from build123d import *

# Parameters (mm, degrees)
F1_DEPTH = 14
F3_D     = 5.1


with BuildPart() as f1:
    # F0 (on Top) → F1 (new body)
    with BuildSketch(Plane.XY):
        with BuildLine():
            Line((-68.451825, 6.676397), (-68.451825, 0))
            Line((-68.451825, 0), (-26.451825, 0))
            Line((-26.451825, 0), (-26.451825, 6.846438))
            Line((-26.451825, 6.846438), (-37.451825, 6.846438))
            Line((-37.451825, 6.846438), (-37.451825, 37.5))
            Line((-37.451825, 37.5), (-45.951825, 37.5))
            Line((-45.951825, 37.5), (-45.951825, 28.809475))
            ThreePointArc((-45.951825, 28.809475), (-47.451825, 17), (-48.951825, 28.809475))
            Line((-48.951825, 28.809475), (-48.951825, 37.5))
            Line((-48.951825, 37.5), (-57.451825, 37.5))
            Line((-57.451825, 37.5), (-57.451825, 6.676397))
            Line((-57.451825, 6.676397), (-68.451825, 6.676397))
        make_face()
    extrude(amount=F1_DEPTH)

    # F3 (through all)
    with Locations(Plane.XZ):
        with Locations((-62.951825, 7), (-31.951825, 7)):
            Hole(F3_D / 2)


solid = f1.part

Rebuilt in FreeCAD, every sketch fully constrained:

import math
import FreeCAD as App
import Part
import Sketcher
Q = App.Units.Quantity

doc = App.newDocument("Part")
body = doc.addObject("PartDesign::Body", "Body")

# Sketch on XY plane
sketch1 = body.newObject("Sketcher::SketchObject", "Sketch")
sketch1.AttachmentSupport = (doc.getObject("XY_Plane"), [""])
sketch1.MapMode = "FlatFace"
sketch1.addGeometry([
    Part.LineSegment(App.Vector(-68.451825, 6.676397, 0), App.Vector(-68.451825, 0, 0)),  # 0
    Part.LineSegment(App.Vector(-68.451825, 0, 0), App.Vector(-26.451825, 0, 0)),  # 1
    Part.LineSegment(App.Vector(-26.451825, 0, 0), App.Vector(-26.451825, 6.846438, 0)),  # 2
    Part.LineSegment(App.Vector(-26.451825, 6.846438, 0), App.Vector(-37.451825, 6.846438, 0)),  # 3
    Part.LineSegment(App.Vector(-37.451825, 6.846438, 0), App.Vector(-37.451825, 37.5, 0)),  # 4
    Part.LineSegment(App.Vector(-37.451825, 37.5, 0), App.Vector(-45.951825, 37.5, 0)),  # 5
    Part.LineSegment(App.Vector(-45.951825, 37.5, 0), App.Vector(-45.951825, 28.809475, 0)),  # 6
    Part.ArcOfCircle(Part.Circle(App.Vector(-47.451825, 23, 0), App.Vector(0, 0, 1), 6), math.radians(104.477512), math.radians(435.522488)),  # 7
    Part.LineSegment(App.Vector(-48.951825, 28.809475, 0), App.Vector(-48.951825, 37.5, 0)),  # 8
    Part.LineSegment(App.Vector(-48.951825, 37.5, 0), App.Vector(-57.451825, 37.5, 0)),  # 9
    Part.LineSegment(App.Vector(-57.451825, 37.5, 0), App.Vector(-57.451825, 6.676397, 0)),  # 10
    Part.LineSegment(App.Vector(-57.451825, 6.676397, 0), App.Vector(-68.451825, 6.676397, 0)),  # 11
], False)
sketch1.addConstraint([
    Sketcher.Constraint("Coincident", 0, 2, 1, 1),
    Sketcher.Constraint("Coincident", 1, 2, 2, 1),
    Sketcher.Constraint("Coincident", 2, 2, 3, 1),
    Sketcher.Constraint("Coincident", 3, 2, 4, 1),
    Sketcher.Constraint("Coincident", 4, 2, 5, 1),
    Sketcher.Constraint("Coincident", 5, 2, 6, 1),
    Sketcher.Constraint("Coincident", 6, 2, 7, 2),
    Sketcher.Constraint("Coincident", 7, 1, 8, 1),
    Sketcher.Constraint("Coincident", 8, 2, 9, 1),
    Sketcher.Constraint("Coincident", 9, 2, 10, 1),
    Sketcher.Constraint("Coincident", 10, 2, 11, 1),
    Sketcher.Constraint("Coincident", 11, 2, 0, 1),
    Sketcher.Constraint("Vertical", 0),
    Sketcher.Constraint("Horizontal", 1),
    Sketcher.Constraint("Vertical", 2),
    Sketcher.Constraint("Horizontal", 3),
    Sketcher.Constraint("Vertical", 4),
    Sketcher.Constraint("Horizontal", 5),
    Sketcher.Constraint("Vertical", 6),
    Sketcher.Constraint("Vertical", 8),
    Sketcher.Constraint("Horizontal", 9),
    Sketcher.Constraint("Vertical", 10),
    Sketcher.Constraint("Horizontal", 11),
    Sketcher.Constraint("PointOnObject", 0, 2, -1),
    Sketcher.Constraint("Horizontal", 6, 2, 7, 1),
    Sketcher.Constraint("Horizontal", 5, 2, 8, 2),
    Sketcher.Constraint("Equal", 5, 9),
    Sketcher.Constraint("Equal", 3, 11),
    Sketcher.Constraint("Radius", 7, Q("6 mm")),
    Sketcher.Constraint("DistanceX", 1, 1, 1, 2, Q("42 mm")),
    Sketcher.Constraint("DistanceX", 3, 2, 3, 1, Q("11 mm")),
    Sketcher.Constraint("DistanceX", 5, 2, 5, 1, Q("8.5 mm")),
    Sketcher.Constraint("DistanceY", -1, 1, 7, 3, Q("23 mm")),
    Sketcher.Constraint("DistanceY", -1, 1, 4, 2, Q("37.5 mm")),
    Sketcher.Constraint("DistanceY", 0, 2, 0, 1, Q("6.676397 mm")),
    Sketcher.Constraint("DistanceY", 2, 1, 2, 2, Q("6.846438 mm")),
    Sketcher.Constraint("DistanceX", 7, 3, -1, 1, Q("47.451825 mm")),
])
pad1 = body.newObject("PartDesign::Pad", "Pad")
pad1.Profile = sketch1
pad1.Length = 14

# Sketch on XZ plane
sketch2 = body.newObject("Sketcher::SketchObject", "Sketch001")
sketch2.AttachmentSupport = (doc.getObject("XZ_Plane"), [""])
sketch2.MapMode = "FlatFace"
sketch2.addGeometry([
    Part.Circle(App.Vector(-62.951825, 7, 0), App.Vector(0, 0, 1), 2.55),
    Part.Circle(App.Vector(-31.951825, 7, 0), App.Vector(0, 0, 1), 2.55),
], False)
sketch2.addConstraint([
    Sketcher.Constraint("Equal", 0, 1),
    Sketcher.Constraint("Horizontal", 0, 3, 1, 3),
    Sketcher.Constraint("Diameter", 0, Q("5.1 mm")),
    Sketcher.Constraint("DistanceY", -1, 1, 0, 3, Q("7 mm")),
    Sketcher.Constraint("DistanceX", 0, 3, 1, 3, Q("31 mm")),
    Sketcher.Constraint("DistanceX", 0, 3, -1, 1, Q("62.951825 mm")),
])
doc.recompute()
hole = body.newObject("PartDesign::Hole", "Hole")
hole.Profile = sketch2
hole.ThreadType = "None"
hole.Diameter = 5.1
hole.DepthType = "ThroughAll"

doc.recompute()
